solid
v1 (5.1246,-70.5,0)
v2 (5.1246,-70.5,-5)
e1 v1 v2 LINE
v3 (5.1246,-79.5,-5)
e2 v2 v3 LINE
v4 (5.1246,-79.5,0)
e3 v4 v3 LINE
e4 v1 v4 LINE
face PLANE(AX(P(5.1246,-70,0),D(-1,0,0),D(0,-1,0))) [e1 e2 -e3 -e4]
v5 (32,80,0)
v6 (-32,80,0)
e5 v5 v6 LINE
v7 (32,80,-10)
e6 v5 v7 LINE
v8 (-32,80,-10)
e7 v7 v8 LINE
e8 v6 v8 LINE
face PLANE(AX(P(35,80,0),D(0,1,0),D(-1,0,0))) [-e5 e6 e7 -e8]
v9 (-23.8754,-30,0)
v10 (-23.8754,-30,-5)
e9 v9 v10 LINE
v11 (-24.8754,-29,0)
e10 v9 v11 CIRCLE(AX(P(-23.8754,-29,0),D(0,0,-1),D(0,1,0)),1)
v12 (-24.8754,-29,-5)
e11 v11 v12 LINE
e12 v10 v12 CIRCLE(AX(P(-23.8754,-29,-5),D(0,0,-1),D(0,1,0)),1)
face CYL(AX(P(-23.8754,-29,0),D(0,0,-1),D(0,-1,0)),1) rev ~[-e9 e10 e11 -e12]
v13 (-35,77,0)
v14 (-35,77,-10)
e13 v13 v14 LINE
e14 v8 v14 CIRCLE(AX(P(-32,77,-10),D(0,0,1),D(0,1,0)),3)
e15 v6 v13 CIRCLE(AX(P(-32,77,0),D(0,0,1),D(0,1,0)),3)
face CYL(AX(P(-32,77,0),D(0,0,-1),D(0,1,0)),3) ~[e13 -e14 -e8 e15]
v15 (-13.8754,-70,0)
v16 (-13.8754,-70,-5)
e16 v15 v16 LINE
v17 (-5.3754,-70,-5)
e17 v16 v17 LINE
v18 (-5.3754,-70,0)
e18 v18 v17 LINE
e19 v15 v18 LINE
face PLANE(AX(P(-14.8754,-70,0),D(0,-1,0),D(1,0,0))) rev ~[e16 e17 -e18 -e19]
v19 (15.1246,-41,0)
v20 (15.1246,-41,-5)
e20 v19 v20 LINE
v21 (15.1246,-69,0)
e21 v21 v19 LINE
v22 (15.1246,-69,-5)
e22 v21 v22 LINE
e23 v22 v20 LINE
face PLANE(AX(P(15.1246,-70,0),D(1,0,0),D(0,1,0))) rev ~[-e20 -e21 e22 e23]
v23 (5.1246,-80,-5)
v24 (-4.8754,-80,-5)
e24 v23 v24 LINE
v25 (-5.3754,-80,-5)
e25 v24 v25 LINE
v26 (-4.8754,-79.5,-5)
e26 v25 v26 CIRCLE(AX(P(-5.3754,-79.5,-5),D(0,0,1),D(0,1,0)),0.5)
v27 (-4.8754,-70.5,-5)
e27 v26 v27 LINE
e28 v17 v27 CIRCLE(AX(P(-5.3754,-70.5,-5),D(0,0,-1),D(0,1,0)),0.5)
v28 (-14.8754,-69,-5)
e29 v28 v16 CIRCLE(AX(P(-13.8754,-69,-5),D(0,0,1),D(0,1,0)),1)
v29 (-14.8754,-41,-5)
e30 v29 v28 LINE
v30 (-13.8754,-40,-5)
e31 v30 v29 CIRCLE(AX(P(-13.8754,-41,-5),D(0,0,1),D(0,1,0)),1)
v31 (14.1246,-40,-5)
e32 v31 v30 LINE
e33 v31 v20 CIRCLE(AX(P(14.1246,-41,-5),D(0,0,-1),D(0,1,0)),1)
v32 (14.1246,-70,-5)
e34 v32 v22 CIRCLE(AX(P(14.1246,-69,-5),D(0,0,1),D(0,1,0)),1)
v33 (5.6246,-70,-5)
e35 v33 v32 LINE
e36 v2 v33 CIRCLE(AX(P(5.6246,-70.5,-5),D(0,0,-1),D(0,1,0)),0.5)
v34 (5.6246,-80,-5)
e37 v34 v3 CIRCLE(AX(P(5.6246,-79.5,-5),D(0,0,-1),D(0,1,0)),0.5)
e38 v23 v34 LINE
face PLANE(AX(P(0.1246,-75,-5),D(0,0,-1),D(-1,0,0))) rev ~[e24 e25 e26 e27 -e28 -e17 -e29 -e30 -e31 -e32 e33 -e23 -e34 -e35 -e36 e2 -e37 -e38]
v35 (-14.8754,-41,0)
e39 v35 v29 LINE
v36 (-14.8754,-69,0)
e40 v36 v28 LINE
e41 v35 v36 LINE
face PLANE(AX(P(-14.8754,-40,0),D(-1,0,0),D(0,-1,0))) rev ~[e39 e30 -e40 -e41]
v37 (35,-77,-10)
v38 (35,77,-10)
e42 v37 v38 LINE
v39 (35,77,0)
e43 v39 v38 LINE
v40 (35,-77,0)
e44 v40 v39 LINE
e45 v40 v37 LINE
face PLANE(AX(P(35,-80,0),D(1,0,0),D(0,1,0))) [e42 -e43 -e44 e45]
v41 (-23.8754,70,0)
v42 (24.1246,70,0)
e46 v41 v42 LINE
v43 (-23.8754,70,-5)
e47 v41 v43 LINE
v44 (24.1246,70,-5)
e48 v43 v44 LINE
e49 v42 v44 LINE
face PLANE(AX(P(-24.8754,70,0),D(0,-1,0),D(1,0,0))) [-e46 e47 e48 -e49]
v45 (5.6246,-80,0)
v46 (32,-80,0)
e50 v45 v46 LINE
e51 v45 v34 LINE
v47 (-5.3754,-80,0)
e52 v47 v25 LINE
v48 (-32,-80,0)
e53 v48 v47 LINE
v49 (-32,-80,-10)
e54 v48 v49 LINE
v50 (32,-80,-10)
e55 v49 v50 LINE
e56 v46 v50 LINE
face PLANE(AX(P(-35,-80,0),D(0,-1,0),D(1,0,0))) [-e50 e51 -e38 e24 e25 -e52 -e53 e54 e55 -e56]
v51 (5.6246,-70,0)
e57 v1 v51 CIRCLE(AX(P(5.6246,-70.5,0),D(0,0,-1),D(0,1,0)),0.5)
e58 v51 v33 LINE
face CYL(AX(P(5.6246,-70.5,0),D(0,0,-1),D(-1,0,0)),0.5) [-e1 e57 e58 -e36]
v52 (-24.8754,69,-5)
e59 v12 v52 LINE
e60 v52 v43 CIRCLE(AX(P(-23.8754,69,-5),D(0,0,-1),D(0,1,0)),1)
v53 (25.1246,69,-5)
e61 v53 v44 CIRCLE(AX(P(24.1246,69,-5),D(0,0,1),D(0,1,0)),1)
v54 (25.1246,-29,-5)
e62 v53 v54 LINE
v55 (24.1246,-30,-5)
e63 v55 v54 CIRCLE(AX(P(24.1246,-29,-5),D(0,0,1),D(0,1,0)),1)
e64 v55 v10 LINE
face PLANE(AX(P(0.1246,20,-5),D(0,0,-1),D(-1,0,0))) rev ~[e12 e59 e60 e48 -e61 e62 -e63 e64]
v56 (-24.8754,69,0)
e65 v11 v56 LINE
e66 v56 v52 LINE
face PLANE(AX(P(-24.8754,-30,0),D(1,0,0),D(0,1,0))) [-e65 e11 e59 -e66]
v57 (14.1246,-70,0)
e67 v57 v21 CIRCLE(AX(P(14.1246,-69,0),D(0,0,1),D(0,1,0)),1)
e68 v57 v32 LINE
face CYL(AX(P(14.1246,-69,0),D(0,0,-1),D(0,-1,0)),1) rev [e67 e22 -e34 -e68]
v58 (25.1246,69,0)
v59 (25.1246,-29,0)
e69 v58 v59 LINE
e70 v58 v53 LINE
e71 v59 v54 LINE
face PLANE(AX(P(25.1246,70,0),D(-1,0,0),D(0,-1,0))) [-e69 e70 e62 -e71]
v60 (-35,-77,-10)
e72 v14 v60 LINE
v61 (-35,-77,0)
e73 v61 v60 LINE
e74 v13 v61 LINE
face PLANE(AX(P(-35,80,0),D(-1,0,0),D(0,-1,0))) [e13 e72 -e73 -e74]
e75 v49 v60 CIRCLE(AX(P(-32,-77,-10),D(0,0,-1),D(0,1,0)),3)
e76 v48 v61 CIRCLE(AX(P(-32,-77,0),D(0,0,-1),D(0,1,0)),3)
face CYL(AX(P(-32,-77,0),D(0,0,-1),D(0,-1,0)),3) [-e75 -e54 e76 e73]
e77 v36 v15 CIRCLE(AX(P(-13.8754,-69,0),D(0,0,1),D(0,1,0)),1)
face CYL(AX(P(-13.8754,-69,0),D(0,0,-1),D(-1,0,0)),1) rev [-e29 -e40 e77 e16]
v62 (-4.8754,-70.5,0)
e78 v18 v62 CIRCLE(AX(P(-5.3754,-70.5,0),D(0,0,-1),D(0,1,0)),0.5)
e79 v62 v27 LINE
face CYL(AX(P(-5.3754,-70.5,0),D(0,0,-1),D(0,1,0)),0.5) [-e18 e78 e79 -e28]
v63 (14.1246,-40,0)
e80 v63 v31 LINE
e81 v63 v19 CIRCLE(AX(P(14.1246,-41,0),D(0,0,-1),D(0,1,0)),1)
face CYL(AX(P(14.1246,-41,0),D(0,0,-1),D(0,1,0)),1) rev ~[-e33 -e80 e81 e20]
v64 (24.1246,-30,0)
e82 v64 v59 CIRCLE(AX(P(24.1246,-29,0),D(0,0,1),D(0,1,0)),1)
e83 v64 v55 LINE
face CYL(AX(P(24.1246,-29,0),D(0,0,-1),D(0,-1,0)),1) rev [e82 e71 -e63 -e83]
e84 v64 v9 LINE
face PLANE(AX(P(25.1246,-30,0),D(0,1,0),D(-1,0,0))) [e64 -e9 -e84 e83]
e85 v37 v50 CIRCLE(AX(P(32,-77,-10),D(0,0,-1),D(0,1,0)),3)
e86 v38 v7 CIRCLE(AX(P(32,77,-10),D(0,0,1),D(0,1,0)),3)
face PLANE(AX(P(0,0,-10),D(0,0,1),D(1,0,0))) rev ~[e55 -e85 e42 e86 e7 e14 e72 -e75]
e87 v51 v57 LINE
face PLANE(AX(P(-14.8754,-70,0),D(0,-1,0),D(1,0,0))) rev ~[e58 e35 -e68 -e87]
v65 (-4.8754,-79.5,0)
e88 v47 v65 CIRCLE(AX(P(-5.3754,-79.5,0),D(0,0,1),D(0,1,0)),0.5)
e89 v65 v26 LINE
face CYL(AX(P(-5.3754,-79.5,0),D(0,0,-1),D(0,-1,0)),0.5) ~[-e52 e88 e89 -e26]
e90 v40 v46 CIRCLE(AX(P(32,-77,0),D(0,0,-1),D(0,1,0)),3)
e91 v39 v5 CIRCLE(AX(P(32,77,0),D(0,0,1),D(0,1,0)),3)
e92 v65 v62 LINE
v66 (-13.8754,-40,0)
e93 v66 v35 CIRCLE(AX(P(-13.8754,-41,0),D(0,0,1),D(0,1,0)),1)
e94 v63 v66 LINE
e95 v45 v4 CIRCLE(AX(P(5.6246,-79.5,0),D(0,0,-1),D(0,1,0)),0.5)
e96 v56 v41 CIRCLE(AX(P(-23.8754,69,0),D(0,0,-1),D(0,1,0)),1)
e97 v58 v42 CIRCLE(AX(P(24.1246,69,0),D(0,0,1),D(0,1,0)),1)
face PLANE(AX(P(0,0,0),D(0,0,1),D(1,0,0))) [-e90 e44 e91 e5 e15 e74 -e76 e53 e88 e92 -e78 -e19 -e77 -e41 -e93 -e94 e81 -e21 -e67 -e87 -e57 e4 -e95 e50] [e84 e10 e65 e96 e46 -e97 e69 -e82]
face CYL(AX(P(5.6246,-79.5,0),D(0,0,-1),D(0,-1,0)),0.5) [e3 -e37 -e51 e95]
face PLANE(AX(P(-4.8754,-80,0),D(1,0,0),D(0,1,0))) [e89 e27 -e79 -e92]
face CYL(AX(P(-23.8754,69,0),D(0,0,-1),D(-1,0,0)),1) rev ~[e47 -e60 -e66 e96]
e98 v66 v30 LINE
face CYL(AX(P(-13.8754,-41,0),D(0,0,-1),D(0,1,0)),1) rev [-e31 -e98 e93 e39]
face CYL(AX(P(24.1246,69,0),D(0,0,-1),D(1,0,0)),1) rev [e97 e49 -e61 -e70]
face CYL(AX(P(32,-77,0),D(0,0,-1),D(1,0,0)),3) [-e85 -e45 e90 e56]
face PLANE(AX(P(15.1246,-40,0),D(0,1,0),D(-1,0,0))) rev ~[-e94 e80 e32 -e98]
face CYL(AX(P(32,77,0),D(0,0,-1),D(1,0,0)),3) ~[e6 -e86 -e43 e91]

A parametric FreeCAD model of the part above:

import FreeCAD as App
import Part
import Sketcher

V = App.Vector
Q = App.Units.Quantity


def edges_at(feature, points):
    """Names of the edges that pass closest to the given points."""
    edges = feature.Shape.Edges
    near = lambda p: min(range(len(edges)), key=lambda i: edges[i].distToShape(Part.Vertex(*p))[0])
    return sorted({f"Edge{near(p) + 1}" for p in points})

doc = App.newDocument("Part")
body = doc.addObject("PartDesign::Body", "Body")

sketch1 = body.newObject("Sketcher::SketchObject", "Sketch")
sketch1.AttachmentSupport = (doc.getObject("XY_Plane"), [""])
sketch1.MapMode = "FlatFace"
sketch1.addGeometry([
    Part.LineSegment(V(-35, -80, 0), V(35, -80, 0)),
    Part.LineSegment(V(35, -80, 0), V(35, 80, 0)),
    Part.LineSegment(V(35, 80, 0), V(-35, 80, 0)),
    Part.LineSegment(V(-35, 80, 0), V(-35, -80, 0)),
], False)
sketch1.addConstraint([
    Sketcher.Constraint("Coincident", 0, 2, 1, 1),
    Sketcher.Constraint("Coincident", 1, 2, 2, 1),
    Sketcher.Constraint("Coincident", 2, 2, 3, 1),
    Sketcher.Constraint("Coincident", 3, 2, 0, 1),
    Sketcher.Constraint("Horizontal", 0),
    Sketcher.Constraint("Vertical", 1),
    Sketcher.Constraint("Horizontal", 2),
    Sketcher.Constraint("Vertical", 3),
    Sketcher.Constraint("Symmetric", 0, 2, 2, 2, -1, 1),
    Sketcher.Constraint("DistanceX", 0, 1, 0, 2, Q("70 mm")),
    Sketcher.Constraint("DistanceY", 1, 1, 1, 2, Q("160 mm")),
])
pad1 = body.newObject("PartDesign::Pad", "Pad")
pad1.Profile = sketch1
pad1.Length = 10
pad1.Reversed = True

sketch2 = body.newObject("Sketcher::SketchObject", "Sketch001")
sketch2.AttachmentSupport = (doc.getObject("XY_Plane"), [""])
sketch2.MapMode = "FlatFace"
sketch2.addGeometry([
    Part.LineSegment(V(25.1246, 70, 0), V(-24.8754, 70, 0)),
    Part.LineSegment(V(-24.8754, 70, 0), V(-24.8754, -30, 0)),
    Part.LineSegment(V(-24.8754, -30, 0), V(25.1246, -30, 0)),
    Part.LineSegment(V(25.1246, -30, 0), V(25.1246, 70, 0)),
], False)
sketch2.addConstraint([
    Sketcher.Constraint("Coincident", 0, 2, 1, 1),
    Sketcher.Constraint("Coincident", 1, 2, 2, 1),
    Sketcher.Constraint("Coincident", 2, 2, 3, 1),
    Sketcher.Constraint("Coincident", 3, 2, 0, 1),
    Sketcher.Constraint("Horizontal", 0),
    Sketcher.Constraint("Vertical", 1),
    Sketcher.Constraint("Horizontal", 2),
    Sketcher.Constraint("Vertical", 3),
    Sketcher.Constraint("DistanceX", 0, 2, 0, 1, Q("50 mm")),
    Sketcher.Constraint("DistanceY", 1, 2, 1, 1, Q("100 mm")),
    Sketcher.Constraint("DistanceY", -1, 1, 0, 2, Q("70 mm")),
    Sketcher.Constraint("DistanceX", 0, 2, -1, 1, Q("24.8754 mm")),
])
pocket1 = body.newObject("PartDesign::Pocket", "Pocket")
pocket1.Profile = sketch2
pocket1.Length = 5

sketch3 = body.newObject("Sketcher::SketchObject", "Sketch002")
sketch3.AttachmentSupport = (doc.getObject("XY_Plane"), [""])
sketch3.MapMode = "FlatFace"
sketch3.addGeometry([
    Part.LineSegment(V(15.1246, -70, 0), V(15.1246, -40, 0)),
    Part.LineSegment(V(15.1246, -40, 0), V(-14.8754, -40, 0)),
    Part.LineSegment(V(-14.8754, -40, 0), V(-14.8754, -70, 0)),
    Part.LineSegment(V(-14.8754, -70, 0), V(15.1246, -70, 0)),
], False)
sketch3.addConstraint([
    Sketcher.Constraint("Coincident", 0, 2, 1, 1),
    Sketcher.Constraint("Coincident", 1, 2, 2, 1),
    Sketcher.Constraint("Coincident", 2, 2, 3, 1),
    Sketcher.Constraint("Coincident", 3, 2, 0, 1),
    Sketcher.Constraint("Vertical", 0),
    Sketcher.Constraint("Horizontal", 1),
    Sketcher.Constraint("Vertical", 2),
    Sketcher.Constraint("Horizontal", 3),
    Sketcher.Constraint("Equal", 3, 0),
    Sketcher.Constraint("DistanceX", 1, 2, 1, 1, Q("30 mm")),
    Sketcher.Constraint("DistanceY", 0, 2, -1, 1, Q("40 mm")),
    Sketcher.Constraint("DistanceX", -1, 1, 0, 2, Q("15.1246 mm")),
])
pocket2 = body.newObject("PartDesign::Pocket", "Pocket001")
pocket2.Profile = sketch3
pocket2.Length = 5
doc.recompute()

fillet = body.newObject("PartDesign::Fillet", "Fillet")
fillet.Base = (pocket2, edges_at(pocket2, [(25.125, -30, -2.5)]))
fillet.Radius = 1
doc.recompute()

fillet2 = body.newObject("PartDesign::Fillet", "Fillet001")
fillet2.Base = (fillet, edges_at(fillet, [
    (-24.875, -30, -2.5),
    (25.125, 70, -2.5),
    (-24.875, 70, -2.5),
    (15.125, -40, -2.5),
    (-14.875, -40, -2.5),
    (15.125, -70, -2.5),
    (-14.875, -70, -2.5),
]))
fillet2.Radius = 1
doc.recompute()

fillet3 = body.newObject("PartDesign::Fillet", "Fillet002")
fillet3.Base = (fillet2, edges_at(fillet2, [
    (-35, -80, -5),
    (35, -80, -5),
    (35, 80, -5),
    (-35, 80, -5),
]))
fillet3.Radius = 3

sketch4 = body.newObject("Sketcher::SketchObject", "Sketch003")
sketch4.AttachmentSupport = (doc.getObject("XY_Plane"), [""])
sketch4.MapMode = "FlatFace"
sketch4.addGeometry([
    Part.LineSegment(V(-4.8754, -70, 0), V(-4.8754, -80, 0)),
    Part.LineSegment(V(-4.8754, -80, 0), V(5.1246, -80, 0)),
    Part.LineSegment(V(5.1246, -80, 0), V(5.1246, -70, 0)),
    Part.LineSegment(V(5.1246, -70, 0), V(-4.8754, -70, 0)),
], False)
sketch4.addConstraint([
    Sketcher.Constraint("Coincident", 0, 2, 1, 1),
    Sketcher.Constraint("Coincident", 1, 2, 2, 1),
    Sketcher.Constraint("Coincident", 2, 2, 3, 1),
    Sketcher.Constraint("Coincident", 3, 2, 0, 1),
    Sketcher.Constraint("Vertical", 0),
    Sketcher.Constraint("Horizontal", 1),
    Sketcher.Constraint("Vertical", 2),
    Sketcher.Constraint("Horizontal", 3),
    Sketcher.Constraint("Equal", 3, 0),
    Sketcher.Constraint("DistanceX", 1, 1, 1, 2, Q("10 mm")),
    Sketcher.Constraint("DistanceY", 0, 2, -1, 1, Q("80 mm")),
    Sketcher.Constraint("DistanceX", 0, 2, -1, 1, Q("4.8754 mm")),
])
pocket3 = body.newObject("PartDesign::Pocket", "Pocket002")
pocket3.Profile = sketch4
pocket3.Length = 5
doc.recompute()

fillet4 = body.newObject("PartDesign::Fillet", "Fillet003")
fillet4.Base = (pocket3, edges_at(pocket3, [
    (5.125, -70, -2.5),
    (-4.875, -70, -2.5),
    (-4.875, -80, -2.5),
    (5.125, -80, -2.5),
]))
fillet4.Radius = 0.5

doc.recompute()
